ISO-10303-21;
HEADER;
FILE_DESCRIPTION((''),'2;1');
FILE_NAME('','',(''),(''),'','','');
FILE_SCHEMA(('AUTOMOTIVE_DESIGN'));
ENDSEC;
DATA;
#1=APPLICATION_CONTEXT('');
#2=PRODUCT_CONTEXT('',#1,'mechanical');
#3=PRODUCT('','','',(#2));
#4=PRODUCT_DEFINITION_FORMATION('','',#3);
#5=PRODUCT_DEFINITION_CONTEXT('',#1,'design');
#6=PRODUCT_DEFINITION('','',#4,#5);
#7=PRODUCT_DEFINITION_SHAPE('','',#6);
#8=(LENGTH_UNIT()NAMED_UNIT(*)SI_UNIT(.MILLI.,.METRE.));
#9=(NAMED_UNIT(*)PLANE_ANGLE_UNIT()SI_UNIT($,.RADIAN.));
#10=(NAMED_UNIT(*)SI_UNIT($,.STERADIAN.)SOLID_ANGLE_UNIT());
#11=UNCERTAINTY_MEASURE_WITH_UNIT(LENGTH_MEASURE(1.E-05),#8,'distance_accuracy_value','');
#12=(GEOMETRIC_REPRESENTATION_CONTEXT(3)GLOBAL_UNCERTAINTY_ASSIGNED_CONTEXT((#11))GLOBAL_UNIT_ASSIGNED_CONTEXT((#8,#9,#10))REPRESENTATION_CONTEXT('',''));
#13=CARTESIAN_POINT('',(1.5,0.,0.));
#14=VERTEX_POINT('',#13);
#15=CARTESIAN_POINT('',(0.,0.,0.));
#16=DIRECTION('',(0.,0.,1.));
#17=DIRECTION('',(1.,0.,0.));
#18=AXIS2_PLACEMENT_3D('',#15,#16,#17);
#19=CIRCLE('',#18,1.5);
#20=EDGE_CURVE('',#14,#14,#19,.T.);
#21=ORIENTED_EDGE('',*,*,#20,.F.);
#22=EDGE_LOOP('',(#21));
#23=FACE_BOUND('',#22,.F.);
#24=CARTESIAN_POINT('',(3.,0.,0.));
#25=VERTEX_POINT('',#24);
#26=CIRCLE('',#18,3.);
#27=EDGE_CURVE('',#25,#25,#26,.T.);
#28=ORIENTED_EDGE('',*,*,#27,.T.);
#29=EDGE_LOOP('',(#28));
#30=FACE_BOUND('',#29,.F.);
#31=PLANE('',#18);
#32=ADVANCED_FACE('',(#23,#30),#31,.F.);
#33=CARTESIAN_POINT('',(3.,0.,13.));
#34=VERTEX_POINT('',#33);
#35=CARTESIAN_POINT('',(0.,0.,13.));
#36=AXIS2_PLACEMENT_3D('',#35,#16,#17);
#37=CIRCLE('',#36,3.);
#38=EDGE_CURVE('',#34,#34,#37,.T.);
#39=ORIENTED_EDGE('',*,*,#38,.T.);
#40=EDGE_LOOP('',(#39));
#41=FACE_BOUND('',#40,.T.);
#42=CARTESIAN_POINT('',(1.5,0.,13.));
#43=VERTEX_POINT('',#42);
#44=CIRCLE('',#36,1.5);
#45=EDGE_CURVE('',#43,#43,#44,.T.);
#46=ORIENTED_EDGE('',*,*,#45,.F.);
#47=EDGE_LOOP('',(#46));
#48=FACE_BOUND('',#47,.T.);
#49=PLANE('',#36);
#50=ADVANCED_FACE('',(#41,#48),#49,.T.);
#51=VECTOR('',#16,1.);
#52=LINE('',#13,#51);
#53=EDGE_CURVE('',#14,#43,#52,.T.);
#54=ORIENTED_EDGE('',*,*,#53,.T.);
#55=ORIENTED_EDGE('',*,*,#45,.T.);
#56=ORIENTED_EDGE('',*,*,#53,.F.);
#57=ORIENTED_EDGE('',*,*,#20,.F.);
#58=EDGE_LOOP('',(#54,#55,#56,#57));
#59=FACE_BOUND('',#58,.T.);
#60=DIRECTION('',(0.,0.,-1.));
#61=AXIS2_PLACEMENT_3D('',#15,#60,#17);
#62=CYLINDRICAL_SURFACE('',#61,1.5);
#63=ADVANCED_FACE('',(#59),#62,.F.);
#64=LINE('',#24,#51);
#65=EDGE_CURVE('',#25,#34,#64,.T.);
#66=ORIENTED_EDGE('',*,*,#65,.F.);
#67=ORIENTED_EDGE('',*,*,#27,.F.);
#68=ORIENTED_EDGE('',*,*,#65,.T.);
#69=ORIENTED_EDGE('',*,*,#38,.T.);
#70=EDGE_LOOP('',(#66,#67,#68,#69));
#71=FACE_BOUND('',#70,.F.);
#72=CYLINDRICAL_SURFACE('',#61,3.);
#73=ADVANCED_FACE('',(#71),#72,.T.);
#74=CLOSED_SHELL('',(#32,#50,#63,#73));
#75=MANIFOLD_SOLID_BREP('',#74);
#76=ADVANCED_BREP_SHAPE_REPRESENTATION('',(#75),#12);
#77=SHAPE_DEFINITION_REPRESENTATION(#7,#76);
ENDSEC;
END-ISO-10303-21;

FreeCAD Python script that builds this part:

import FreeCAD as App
import Part
import Sketcher
from FreeCAD import Vector
Q = App.Units.Quantity

doc = App.newDocument("Part")
body = doc.addObject("PartDesign::Body", "Body")

# Sketch on XY plane
sketch1 = body.newObject("Sketcher::SketchObject", "Sketch")
sketch1.AttachmentSupport = (doc.getObject("XY_Plane"), [""])
sketch1.MapMode = "FlatFace"
sketch1.addGeometry([
    Part.Circle(Vector(0, 0, 0), Vector(0, 0, 1), 3),
    Part.Circle(Vector(0, 0, 0), Vector(0, 0, 1), 1.5),
], False)
sketch1.addConstraint([
    Sketcher.Constraint("Coincident", 0, 3, -1, 1),
    Sketcher.Constraint("Coincident", 1, 3, -1, 1),
    Sketcher.Constraint("Diameter", 0, Q("6 mm")),
    Sketcher.Constraint("Diameter", 1, Q("3 mm")),
])
pad1 = body.newObject("PartDesign::Pad", "Pad")
pad1.Profile = sketch1
pad1.Length = 13

doc.recompute()
